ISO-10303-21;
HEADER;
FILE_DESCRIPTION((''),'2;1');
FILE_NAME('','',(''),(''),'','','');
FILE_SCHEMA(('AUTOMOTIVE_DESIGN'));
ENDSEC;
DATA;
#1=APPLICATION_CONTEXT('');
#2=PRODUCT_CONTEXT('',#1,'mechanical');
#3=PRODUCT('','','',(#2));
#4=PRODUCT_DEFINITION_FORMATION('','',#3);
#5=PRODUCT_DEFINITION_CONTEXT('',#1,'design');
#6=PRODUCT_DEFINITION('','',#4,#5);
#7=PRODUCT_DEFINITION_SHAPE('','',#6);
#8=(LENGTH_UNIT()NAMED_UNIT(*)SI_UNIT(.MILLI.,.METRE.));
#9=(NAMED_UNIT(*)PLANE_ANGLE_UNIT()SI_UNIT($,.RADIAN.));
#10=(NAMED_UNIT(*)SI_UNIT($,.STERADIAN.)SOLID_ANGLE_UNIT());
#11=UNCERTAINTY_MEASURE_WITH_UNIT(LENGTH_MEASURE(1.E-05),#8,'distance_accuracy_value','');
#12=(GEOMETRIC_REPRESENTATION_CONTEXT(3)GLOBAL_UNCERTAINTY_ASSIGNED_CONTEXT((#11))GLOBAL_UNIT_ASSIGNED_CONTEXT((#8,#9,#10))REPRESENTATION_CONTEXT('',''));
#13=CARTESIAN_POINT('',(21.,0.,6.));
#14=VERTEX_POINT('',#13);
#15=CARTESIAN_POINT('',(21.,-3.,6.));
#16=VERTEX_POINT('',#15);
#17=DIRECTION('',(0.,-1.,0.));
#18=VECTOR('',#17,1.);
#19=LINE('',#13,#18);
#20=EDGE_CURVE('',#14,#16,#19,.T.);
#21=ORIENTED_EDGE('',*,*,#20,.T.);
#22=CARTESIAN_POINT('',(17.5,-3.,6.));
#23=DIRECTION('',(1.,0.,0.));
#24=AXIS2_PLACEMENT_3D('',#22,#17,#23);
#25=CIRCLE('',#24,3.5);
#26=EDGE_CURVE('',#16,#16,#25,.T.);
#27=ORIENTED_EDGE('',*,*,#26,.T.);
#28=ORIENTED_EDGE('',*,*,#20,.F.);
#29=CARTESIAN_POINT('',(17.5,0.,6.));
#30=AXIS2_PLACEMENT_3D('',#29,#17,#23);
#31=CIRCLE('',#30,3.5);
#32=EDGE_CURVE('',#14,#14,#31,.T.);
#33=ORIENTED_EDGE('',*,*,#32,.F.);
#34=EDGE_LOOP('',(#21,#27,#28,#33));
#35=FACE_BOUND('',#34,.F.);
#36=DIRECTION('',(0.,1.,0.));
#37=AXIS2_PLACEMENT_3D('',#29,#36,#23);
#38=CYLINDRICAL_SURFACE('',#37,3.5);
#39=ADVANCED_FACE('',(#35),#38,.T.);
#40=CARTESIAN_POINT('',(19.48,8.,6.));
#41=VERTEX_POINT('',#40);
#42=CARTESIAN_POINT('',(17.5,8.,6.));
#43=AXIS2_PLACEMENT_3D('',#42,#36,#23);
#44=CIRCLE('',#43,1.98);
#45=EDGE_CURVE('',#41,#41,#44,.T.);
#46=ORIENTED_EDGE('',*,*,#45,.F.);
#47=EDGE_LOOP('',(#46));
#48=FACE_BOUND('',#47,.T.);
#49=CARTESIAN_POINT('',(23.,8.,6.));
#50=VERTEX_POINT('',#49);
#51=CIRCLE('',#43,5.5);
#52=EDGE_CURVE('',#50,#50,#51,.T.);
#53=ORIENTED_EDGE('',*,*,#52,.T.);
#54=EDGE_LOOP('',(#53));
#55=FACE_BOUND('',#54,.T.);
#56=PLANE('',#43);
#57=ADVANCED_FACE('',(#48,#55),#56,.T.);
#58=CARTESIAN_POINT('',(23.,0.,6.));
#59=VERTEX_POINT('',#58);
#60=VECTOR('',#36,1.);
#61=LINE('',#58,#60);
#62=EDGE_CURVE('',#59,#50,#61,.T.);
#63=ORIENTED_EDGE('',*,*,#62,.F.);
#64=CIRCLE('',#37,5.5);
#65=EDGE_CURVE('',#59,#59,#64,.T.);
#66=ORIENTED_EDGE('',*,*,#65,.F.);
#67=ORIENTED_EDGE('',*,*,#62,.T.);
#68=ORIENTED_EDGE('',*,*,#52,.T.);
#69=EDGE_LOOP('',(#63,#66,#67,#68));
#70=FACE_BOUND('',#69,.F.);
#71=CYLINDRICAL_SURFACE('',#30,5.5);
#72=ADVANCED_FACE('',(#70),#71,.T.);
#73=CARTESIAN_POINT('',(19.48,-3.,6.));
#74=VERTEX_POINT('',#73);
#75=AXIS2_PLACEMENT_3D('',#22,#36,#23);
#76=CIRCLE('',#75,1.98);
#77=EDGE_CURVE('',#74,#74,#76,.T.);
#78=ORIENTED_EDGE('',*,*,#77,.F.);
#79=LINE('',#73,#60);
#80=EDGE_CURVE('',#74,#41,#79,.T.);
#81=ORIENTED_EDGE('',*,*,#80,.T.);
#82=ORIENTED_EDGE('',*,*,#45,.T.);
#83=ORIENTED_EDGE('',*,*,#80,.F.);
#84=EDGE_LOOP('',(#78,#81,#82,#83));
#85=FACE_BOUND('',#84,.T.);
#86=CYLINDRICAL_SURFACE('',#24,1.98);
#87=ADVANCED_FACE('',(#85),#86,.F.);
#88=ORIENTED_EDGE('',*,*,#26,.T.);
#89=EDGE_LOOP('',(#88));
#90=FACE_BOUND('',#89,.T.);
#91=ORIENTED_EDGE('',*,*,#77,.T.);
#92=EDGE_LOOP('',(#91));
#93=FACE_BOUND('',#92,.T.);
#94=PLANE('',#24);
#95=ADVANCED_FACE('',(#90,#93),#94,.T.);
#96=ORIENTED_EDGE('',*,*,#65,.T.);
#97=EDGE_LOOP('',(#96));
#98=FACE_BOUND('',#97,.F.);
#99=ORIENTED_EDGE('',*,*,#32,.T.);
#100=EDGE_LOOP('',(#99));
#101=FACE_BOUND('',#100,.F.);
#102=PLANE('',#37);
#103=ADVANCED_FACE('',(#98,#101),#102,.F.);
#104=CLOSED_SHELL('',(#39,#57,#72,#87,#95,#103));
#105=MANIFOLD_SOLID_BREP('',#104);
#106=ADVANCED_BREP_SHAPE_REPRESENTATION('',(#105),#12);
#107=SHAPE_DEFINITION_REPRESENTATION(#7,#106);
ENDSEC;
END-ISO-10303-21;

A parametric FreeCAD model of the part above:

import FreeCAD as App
import Part
import Sketcher
from FreeCAD import Vector
Q = App.Units.Quantity

doc = App.newDocument("Part")
body = doc.addObject("PartDesign::Body", "Body")

# Sketch on XY plane
sketch1 = body.newObject("Sketcher::SketchObject", "Sketch")
sketch1.AttachmentSupport = (doc.getObject("XY_Plane"), [""])
sketch1.MapMode = "FlatFace"
sketch1.addGeometry(Part.Circle(Vector(0, 0, 0), Vector(0, 0, 1), 2), False)
sketch1.addConstraint(Sketcher.Constraint("Coincident", 0, 3, -1, 1))
sketch1.addConstraint(Sketcher.Constraint("Diameter", 0, Q("3.96 mm")))
pad1 = body.newObject("PartDesign::Pad", "Pad")
pad1.Profile = sketch1
pad1.Length = 11
body2 = doc.addObject("PartDesign::Body", "Body001")
doc.recompute()

body.Placement = App.Placement(Vector(0, 0, 0), App.Rotation(Vector(1, 0, 0), 270))
boolean = body2.newObject("PartDesign::Boolean", "Boolean")
boolean.Type = "Fuse"
boolean.addObjects([body])
body3 = doc.addObject("PartDesign::Body", "Body002")
doc.recompute()

body2.Placement = App.Placement(Vector(17.5, -3, 6), App.Rotation(Vector(0, 0, 1), 0))
boolean2 = body3.newObject("PartDesign::Boolean", "Boolean001")
boolean2.Type = "Fuse"
boolean2.addObjects([body2])
body4 = doc.addObject("PartDesign::Body", "Body003")

# Sketch on XY plane
sketch2 = body4.newObject("Sketcher::SketchObject", "Sketch001")
sketch2.AttachmentSupport = (doc.getObject("XY_Plane003"), [""])
sketch2.MapMode = "FlatFace"
sketch2.addGeometry(Part.Circle(Vector(0, 0, 0), Vector(0, 0, 1), 3.5), False)
sketch2.addConstraint(Sketcher.Constraint("Coincident", 0, 3, -1, 1))
sketch2.addConstraint(Sketcher.Constraint("Diameter", 0, Q("7 mm")))
pad2 = body4.newObject("PartDesign::Pad", "Pad001")
pad2.Profile = sketch2
pad2.Length = 3
body5 = doc.addObject("PartDesign::Body", "Body004")
doc.recompute()

body4.Placement = App.Placement(Vector(0, 0, 0), App.Rotation(Vector(1, 0, 0), 90))
boolean3 = body5.newObject("PartDesign::Boolean", "Boolean002")
boolean3.Type = "Fuse"
boolean3.addObjects([body4])
body6 = doc.addObject("PartDesign::Body", "Body005")
doc.recompute()

body5.Placement = App.Placement(Vector(17.5, 0, 6), App.Rotation(Vector(0, 0, 1), 0))
boolean4 = body6.newObject("PartDesign::Boolean", "Boolean003")
boolean4.Type = "Fuse"
boolean4.addObjects([body5])
body7 = doc.addObject("PartDesign::Body", "Body006")

# Sketch on XY plane
sketch3 = body7.newObject("Sketcher::SketchObject", "Sketch002")
sketch3.AttachmentSupport = (doc.getObject("XY_Plane006"), [""])
sketch3.MapMode = "FlatFace"
sketch3.addGeometry(Part.Circle(Vector(0, 0, 0), Vector(0, 0, 1), 6), False)
sketch3.addConstraint(Sketcher.Constraint("Coincident", 0, 3, -1, 1))
sketch3.addConstraint(Sketcher.Constraint("Diameter", 0, Q("11 mm")))
pad3 = body7.newObject("PartDesign::Pad", "Pad002")
pad3.Profile = sketch3
pad3.Length = 8
body8 = doc.addObject("PartDesign::Body", "Body007")
doc.recompute()

body7.Placement = App.Placement(Vector(0, 0, 0), App.Rotation(Vector(1, 0, 0), 270))
boolean5 = body8.newObject("PartDesign::Boolean", "Boolean004")
boolean5.Type = "Fuse"
boolean5.addObjects([body7])
body9 = doc.addObject("PartDesign::Body", "Body008")
doc.recompute()

body8.Placement = App.Placement(Vector(17.5, 0, 6), App.Rotation(Vector(0, 0, 1), 0))
boolean6 = body9.newObject("PartDesign::Boolean", "Boolean005")
boolean6.Type = "Fuse"
boolean6.addObjects([body8])
doc.recompute()

boolean7 = body9.newObject("PartDesign::Boolean", "Boolean006")
boolean7.Type = "Fuse"
boolean7.addObjects([body6])
doc.recompute()

boolean8 = body9.newObject("PartDesign::Boolean", "Boolean007")
boolean8.Type = "Cut"
boolean8.addObjects([body3])

doc.recompute()
